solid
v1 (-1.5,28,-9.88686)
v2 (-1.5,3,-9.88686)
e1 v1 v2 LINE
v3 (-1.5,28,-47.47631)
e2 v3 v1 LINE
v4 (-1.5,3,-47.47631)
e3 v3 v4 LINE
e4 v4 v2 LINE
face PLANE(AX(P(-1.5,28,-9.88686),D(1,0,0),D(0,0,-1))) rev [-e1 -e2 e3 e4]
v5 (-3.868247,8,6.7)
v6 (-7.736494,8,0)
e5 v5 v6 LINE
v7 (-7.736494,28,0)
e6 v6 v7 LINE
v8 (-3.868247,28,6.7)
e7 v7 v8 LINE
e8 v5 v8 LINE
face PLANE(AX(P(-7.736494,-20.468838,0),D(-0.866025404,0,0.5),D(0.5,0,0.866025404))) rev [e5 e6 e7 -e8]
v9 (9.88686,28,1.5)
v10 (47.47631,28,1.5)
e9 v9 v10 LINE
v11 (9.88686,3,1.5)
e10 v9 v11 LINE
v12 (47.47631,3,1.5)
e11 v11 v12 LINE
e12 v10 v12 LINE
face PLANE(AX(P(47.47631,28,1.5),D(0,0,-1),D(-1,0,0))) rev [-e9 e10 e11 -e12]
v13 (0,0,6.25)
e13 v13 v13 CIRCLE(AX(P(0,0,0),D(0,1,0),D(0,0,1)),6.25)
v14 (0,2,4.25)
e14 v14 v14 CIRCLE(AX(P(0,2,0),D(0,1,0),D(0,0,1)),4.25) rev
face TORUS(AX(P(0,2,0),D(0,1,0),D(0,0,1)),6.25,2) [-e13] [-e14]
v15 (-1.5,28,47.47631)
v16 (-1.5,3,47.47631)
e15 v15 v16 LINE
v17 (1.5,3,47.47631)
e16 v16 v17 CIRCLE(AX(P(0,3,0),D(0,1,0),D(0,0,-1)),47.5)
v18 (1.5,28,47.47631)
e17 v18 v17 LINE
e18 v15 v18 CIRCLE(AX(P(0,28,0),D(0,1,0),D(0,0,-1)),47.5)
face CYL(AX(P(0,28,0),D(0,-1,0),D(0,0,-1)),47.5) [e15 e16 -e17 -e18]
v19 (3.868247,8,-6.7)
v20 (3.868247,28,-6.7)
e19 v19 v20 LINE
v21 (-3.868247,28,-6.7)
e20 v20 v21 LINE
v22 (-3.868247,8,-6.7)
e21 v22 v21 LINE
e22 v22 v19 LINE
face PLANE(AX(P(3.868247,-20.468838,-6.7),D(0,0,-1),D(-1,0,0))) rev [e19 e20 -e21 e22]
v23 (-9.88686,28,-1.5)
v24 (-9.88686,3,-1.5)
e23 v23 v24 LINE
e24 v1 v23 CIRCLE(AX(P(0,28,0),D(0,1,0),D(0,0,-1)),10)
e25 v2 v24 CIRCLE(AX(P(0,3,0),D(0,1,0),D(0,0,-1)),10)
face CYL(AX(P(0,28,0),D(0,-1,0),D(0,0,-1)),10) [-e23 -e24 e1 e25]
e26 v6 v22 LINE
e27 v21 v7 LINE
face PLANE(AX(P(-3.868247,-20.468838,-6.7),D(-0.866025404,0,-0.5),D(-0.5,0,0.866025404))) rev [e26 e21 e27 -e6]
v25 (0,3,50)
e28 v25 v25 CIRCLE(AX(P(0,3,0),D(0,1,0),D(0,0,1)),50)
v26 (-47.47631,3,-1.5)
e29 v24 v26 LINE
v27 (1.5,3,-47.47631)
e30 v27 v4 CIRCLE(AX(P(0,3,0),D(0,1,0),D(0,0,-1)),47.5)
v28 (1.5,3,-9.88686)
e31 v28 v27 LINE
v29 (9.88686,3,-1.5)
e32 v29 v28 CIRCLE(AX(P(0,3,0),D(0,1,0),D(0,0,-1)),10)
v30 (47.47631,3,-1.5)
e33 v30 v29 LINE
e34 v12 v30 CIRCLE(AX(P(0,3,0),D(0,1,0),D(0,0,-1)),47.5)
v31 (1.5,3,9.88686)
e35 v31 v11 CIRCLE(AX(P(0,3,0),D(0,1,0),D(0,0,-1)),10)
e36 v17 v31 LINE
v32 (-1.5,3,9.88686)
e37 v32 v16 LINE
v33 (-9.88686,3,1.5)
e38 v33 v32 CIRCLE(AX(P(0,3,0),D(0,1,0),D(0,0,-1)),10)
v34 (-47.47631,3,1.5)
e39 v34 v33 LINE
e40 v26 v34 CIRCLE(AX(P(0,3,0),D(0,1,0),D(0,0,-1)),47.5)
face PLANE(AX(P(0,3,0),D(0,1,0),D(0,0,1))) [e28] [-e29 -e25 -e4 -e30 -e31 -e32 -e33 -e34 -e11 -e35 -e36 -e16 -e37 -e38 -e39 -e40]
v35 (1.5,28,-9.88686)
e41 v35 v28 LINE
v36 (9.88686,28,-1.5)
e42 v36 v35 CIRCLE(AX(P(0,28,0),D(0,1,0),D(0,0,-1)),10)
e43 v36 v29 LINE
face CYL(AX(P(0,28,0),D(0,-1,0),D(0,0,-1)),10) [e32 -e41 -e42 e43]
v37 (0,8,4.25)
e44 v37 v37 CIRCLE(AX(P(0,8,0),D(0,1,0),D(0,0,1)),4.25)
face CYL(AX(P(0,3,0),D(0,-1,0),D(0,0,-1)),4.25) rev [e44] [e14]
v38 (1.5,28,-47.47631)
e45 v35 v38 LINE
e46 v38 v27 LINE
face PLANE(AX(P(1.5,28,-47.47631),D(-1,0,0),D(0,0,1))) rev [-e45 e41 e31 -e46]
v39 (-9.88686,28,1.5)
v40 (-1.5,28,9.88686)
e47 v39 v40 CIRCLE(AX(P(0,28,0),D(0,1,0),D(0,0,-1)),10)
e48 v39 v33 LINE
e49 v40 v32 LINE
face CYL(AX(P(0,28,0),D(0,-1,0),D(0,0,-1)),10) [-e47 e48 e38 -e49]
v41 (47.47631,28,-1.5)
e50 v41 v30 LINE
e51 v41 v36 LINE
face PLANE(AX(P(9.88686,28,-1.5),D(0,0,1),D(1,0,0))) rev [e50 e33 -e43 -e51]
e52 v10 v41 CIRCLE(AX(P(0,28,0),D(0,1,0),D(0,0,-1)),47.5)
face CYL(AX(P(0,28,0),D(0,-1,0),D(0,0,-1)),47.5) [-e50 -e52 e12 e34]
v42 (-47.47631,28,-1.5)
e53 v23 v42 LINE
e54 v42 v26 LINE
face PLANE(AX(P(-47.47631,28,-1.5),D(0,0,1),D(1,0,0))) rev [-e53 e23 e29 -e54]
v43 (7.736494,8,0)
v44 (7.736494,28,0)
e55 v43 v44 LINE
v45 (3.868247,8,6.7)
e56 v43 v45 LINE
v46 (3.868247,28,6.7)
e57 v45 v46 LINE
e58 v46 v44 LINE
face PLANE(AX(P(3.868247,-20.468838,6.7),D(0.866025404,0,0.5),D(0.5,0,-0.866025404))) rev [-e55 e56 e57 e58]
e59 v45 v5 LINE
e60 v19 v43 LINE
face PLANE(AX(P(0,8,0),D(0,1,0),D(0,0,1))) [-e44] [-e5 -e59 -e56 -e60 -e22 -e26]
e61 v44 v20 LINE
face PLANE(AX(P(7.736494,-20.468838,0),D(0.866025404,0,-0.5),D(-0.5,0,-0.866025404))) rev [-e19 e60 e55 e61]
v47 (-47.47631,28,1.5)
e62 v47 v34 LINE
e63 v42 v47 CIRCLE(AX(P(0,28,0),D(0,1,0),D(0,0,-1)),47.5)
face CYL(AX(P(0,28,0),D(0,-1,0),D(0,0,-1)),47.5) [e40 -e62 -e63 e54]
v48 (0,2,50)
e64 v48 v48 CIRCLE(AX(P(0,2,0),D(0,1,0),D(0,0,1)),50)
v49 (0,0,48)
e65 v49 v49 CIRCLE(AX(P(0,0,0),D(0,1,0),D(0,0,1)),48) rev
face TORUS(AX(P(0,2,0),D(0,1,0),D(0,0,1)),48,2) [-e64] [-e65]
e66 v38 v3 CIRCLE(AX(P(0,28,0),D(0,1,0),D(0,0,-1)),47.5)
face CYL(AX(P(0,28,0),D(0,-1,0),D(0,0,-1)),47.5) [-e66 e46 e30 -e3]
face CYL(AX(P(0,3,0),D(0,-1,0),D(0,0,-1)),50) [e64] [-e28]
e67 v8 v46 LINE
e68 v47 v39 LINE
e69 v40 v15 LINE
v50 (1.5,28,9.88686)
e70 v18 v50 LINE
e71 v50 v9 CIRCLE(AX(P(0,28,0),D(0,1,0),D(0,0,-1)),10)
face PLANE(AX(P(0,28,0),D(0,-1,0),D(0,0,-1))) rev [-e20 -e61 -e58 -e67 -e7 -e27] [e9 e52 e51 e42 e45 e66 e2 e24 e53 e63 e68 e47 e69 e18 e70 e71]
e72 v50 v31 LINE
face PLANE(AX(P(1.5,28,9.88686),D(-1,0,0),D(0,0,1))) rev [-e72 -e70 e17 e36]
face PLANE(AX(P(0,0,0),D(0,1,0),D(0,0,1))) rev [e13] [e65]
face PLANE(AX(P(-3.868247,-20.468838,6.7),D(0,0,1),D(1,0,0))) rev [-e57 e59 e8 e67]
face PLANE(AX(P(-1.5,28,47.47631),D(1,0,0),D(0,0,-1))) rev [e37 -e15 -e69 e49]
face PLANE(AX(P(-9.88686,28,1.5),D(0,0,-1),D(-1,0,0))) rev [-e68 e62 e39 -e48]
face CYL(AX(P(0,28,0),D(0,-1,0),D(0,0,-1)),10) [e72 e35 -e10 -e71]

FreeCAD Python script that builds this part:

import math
import FreeCAD as App
import Part
import Sketcher

V = App.Vector
Q = App.Units.Quantity


def edges_at(feature, points):
    """Names of the edges that pass closest to the given points."""
    edges = feature.Shape.Edges
    near = lambda p: min(range(len(edges)), key=lambda i: edges[i].distToShape(Part.Vertex(*p))[0])
    return sorted({f"Edge{near(p) + 1}" for p in points})

doc = App.newDocument("Part")
body = doc.addObject("PartDesign::Body", "Body")

sketch1 = doc.addObject("Sketcher::SketchObject", "Sketch")
body.addObject(sketch1)
sketch1.AttachmentSupport = (doc.XZ_Plane, [""])
sketch1.MapMode = "FlatFace"
sketch1.addGeometry(Part.Circle(V(0, 0, 0), V(0, 0, 1), 50), False)
sketch1.addGeometry(Part.Circle(V(0, 0, 0), V(0, 0, 1), 4.2), False)
sketch1.addConstraint(Sketcher.Constraint("Coincident", 0, 3, -1, 1))
sketch1.addConstraint(Sketcher.Constraint("Coincident", 1, 3, -1, 1))
sketch1.addConstraint(Sketcher.Constraint("Diameter", 0, Q("100 mm")))
sketch1.addConstraint(Sketcher.Constraint("Diameter", 1, Q("8.5 mm")))
pad1 = doc.addObject("PartDesign::Pad", "Pad")
body.addObject(pad1)
pad1.Profile = sketch1
pad1.Length = 3
pad1.Reversed = True

sketch2 = doc.addObject("Sketcher::SketchObject", "Sketch001")
body.addObject(sketch2)
sketch2.AttachmentSupport = (doc.XZ_Plane, [""])
sketch2.MapMode = "FlatFace"
sketch2.AttachmentOffset = App.Placement(V(0, 0, -3), App.Rotation())
sketch2.addGeometry(Part.LineSegment(V(47.5, -1.5, 0), V(9.9, -1.5, 0)), False)
sketch2.addGeometry(Part.ArcOfCircle(Part.Circle(V(0, 0, 0), V(0, 0, 1), 10), math.radians(-81), math.radians(-9)), False)
sketch2.addGeometry(Part.LineSegment(V(1.5, -9.9, 0), V(1.5, -47.5, 0)), False)
sketch2.addGeometry(Part.ArcOfCircle(Part.Circle(V(0, 0, 0), V(0, 0, 1), 47.5), math.radians(-91.81), math.radians(-88.19)), False)
sketch2.addGeometry(Part.LineSegment(V(-1.5, -47.5, 0), V(-1.5, -9.9, 0)), False)
sketch2.addGeometry(Part.ArcOfCircle(Part.Circle(V(0, 0, 0), V(0, 0, 1), 10), math.radians(-171), math.radians(-99)), False)
sketch2.addGeometry(Part.LineSegment(V(-9.9, -1.5, 0), V(-47.5, -1.5, 0)), False)
sketch2.addGeometry(Part.ArcOfCircle(Part.Circle(V(0, 0, 0), V(0, 0, 1), 47.5), math.radians(178.19), math.radians(181.81)), False)
sketch2.addGeometry(Part.LineSegment(V(-47.5, 1.5, 0), V(-9.9, 1.5, 0)), False)
sketch2.addGeometry(Part.ArcOfCircle(Part.Circle(V(0, 0, 0), V(0, 0, 1), 10), math.radians(99), math.radians(171)), False)
sketch2.addGeometry(Part.LineSegment(V(-1.5, 9.9, 0), V(-1.5, 47.5, 0)), False)
sketch2.addGeometry(Part.ArcOfCircle(Part.Circle(V(0, 0, 0), V(0, 0, 1), 47.5), math.radians(88.19), math.radians(91.81)), False)
sketch2.addGeometry(Part.LineSegment(V(1.5, 47.5, 0), V(1.5, 9.9, 0)), False)
sketch2.addGeometry(Part.ArcOfCircle(Part.Circle(V(0, 0, 0), V(0, 0, 1), 10), math.radians(9), math.radians(81)), False)
sketch2.addGeometry(Part.LineSegment(V(9.9, 1.5, 0), V(47.5, 1.5, 0)), False)
sketch2.addGeometry(Part.ArcOfCircle(Part.Circle(V(0, 0, 0), V(0, 0, 1), 47.5), math.radians(-1.81), math.radians(1.81)), False)
sketch2.addGeometry(Part.Circle(V(0, 0, 0), V(0, 0, 1), 4.2), False)
sketch2.addConstraint(Sketcher.Constraint("Coincident", 0, 2, 1, 2))
sketch2.addConstraint(Sketcher.Constraint("Coincident", 1, 1, 2, 1))
sketch2.addConstraint(Sketcher.Constraint("Coincident", 2, 2, 3, 2))
sketch2.addConstraint(Sketcher.Constraint("Coincident", 3, 1, 4, 1))
sketch2.addConstraint(Sketcher.Constraint("Coincident", 4, 2, 5, 2))
sketch2.addConstraint(Sketcher.Constraint("Coincident", 5, 1, 6, 1))
sketch2.addConstraint(Sketcher.Constraint("Coincident", 6, 2, 7, 2))
sketch2.addConstraint(Sketcher.Constraint("Coincident", 7, 1, 8, 1))
sketch2.addConstraint(Sketcher.Constraint("Coincident", 8, 2, 9, 2))
sketch2.addConstraint(Sketcher.Constraint("Coincident", 9, 1, 10, 1))
sketch2.addConstraint(Sketcher.Constraint("Coincident", 10, 2, 11, 2))
sketch2.addConstraint(Sketcher.Constraint("Coincident", 11, 1, 12, 1))
sketch2.addConstraint(Sketcher.Constraint("Coincident", 12, 2, 13, 2))
sketch2.addConstraint(Sketcher.Constraint("Coincident", 13, 1, 14, 1))
sketch2.addConstraint(Sketcher.Constraint("Coincident", 14, 2, 15, 2))
sketch2.addConstraint(Sketcher.Constraint("Coincident", 15, 1, 0, 1))
sketch2.addConstraint(Sketcher.Constraint("Horizontal", 0))
sketch2.addConstraint(Sketcher.Constraint("Vertical", 2))
sketch2.addConstraint(Sketcher.Constraint("Vertical", 4))
sketch2.addConstraint(Sketcher.Constraint("Horizontal", 6))
sketch2.addConstraint(Sketcher.Constraint("Horizontal", 8))
sketch2.addConstraint(Sketcher.Constraint("Vertical", 10))
sketch2.addConstraint(Sketcher.Constraint("Vertical", 12))
sketch2.addConstraint(Sketcher.Constraint("Horizontal", 14))
sketch2.addConstraint(Sketcher.Constraint("Coincident", 1, 3, -1, 1))
sketch2.addConstraint(Sketcher.Constraint("Coincident", 3, 3, -1, 1))
sketch2.addConstraint(Sketcher.Constraint("Coincident", 5, 3, -1, 1))
sketch2.addConstraint(Sketcher.Constraint("Coincident", 7, 3, -1, 1))
sketch2.addConstraint(Sketcher.Constraint("Coincident", 9, 3, -1, 1))
sketch2.addConstraint(Sketcher.Constraint("Coincident", 11, 3, -1, 1))
sketch2.addConstraint(Sketcher.Constraint("Coincident", 13, 3, -1, 1))
sketch2.addConstraint(Sketcher.Constraint("Coincident", 15, 3, -1, 1))
sketch2.addConstraint(Sketcher.Constraint("Coincident", 16, 3, -1, 1))
sketch2.addConstraint(Sketcher.Constraint("Equal", 1, 5))
sketch2.addConstraint(Sketcher.Constraint("Equal", 3, 7))
sketch2.addConstraint(Sketcher.Constraint("Equal", 5, 9))
sketch2.addConstraint(Sketcher.Constraint("Equal", 7, 11))
sketch2.addConstraint(Sketcher.Constraint("Equal", 9, 13))
sketch2.addConstraint(Sketcher.Constraint("Equal", 11, 15))
sketch2.addConstraint(Sketcher.Constraint("Horizontal", 2, 2, 3, 1))
sketch2.addConstraint(Sketcher.Constraint("Horizontal", 0, 2, 5, 1))
sketch2.addConstraint(Sketcher.Constraint("Horizontal", 10, 2, 11, 1))
sketch2.addConstraint(Sketcher.Constraint("Horizontal", 8, 2, 13, 1))
sketch2.addConstraint(Sketcher.Constraint("Vertical", 6, 2, 7, 1))
sketch2.addConstraint(Sketcher.Constraint("Vertical", 4, 2, 9, 1))
sketch2.addConstraint(Sketcher.Constraint("Equal", 14, 2))
sketch2.addConstraint(Sketcher.Constraint("Radius", 1, Q("10 mm")))
sketch2.addConstraint(Sketcher.Constraint("Diameter", 16, Q("8.5 mm")))
sketch2.addConstraint(Sketcher.Constraint("Radius", 3, Q("47.5 mm")))
sketch2.addConstraint(Sketcher.Constraint("DistanceX", 3, 1, 2, 2, Q("3 mm")))
pad2 = doc.addObject("PartDesign::Pad", "Pad001")
body.addObject(pad2)
pad2.Profile = sketch2
pad2.Length = 25
pad2.Reversed = True

sketch3 = doc.addObject("Sketcher::SketchObject", "Sketch002")
body.addObject(sketch3)
sketch3.AttachmentSupport = (doc.XZ_Plane, [""])
sketch3.MapMode = "FlatFace"
sketch3.AttachmentOffset = App.Placement(V(0, 0, -28), App.Rotation())
sketch3.addGeometry(Part.LineSegment(V(8, 0, 0), V(4, -7, 0)), False)
sketch3.addGeometry(Part.LineSegment(V(4, -7, 0), V(-4, -7, 0)), False)
sketch3.addGeometry(Part.LineSegment(V(-4, -7, 0), V(-8, 0, 0)), False)
sketch3.addGeometry(Part.LineSegment(V(-8, 0, 0), V(-4, 7, 0)), False)
sketch3.addGeometry(Part.LineSegment(V(-4, 7, 0), V(4, 7, 0)), False)
sketch3.addGeometry(Part.LineSegment(V(4, 7, 0), V(8, 0, 0)), False)
sketch3.addConstraint(Sketcher.Constraint("Coincident", 0, 2, 1, 1))
sketch3.addConstraint(Sketcher.Constraint("Coincident", 1, 2, 2, 1))
sketch3.addConstraint(Sketcher.Constraint("Coincident", 2, 2, 3, 1))
sketch3.addConstraint(Sketcher.Constraint("Coincident", 3, 2, 4, 1))
sketch3.addConstraint(Sketcher.Constraint("Coincident", 4, 2, 5, 1))
sketch3.addConstraint(Sketcher.Constraint("Coincident", 5, 2, 0, 1))
sketch3.addConstraint(Sketcher.Constraint("Horizontal", 1))
sketch3.addConstraint(Sketcher.Constraint("Horizontal", 4))
sketch3.addConstraint(Sketcher.Constraint("Symmetric", 0, 2, 3, 2, -1, 1))
sketch3.addConstraint(Sketcher.Constraint("Symmetric", 2, 2, 5, 2, -1, 1))
sketch3.addConstraint(Sketcher.Constraint("PointOnObject", 2, 2, -1))
sketch3.addConstraint(Sketcher.Constraint("Parallel", 2, 5))
sketch3.addConstraint(Sketcher.Constraint("Vertical", 1, 2, 3, 2))
sketch3.addConstraint(Sketcher.Constraint("Angle", 0, Q("-120 deg")))
sketch3.addConstraint(Sketcher.Constraint("DistanceY", 0, 2, -1, 1, Q("6.7 mm")))
sketch3.addConstraint(Sketcher.Constraint("DistanceX", 1, 2, 1, 1, Q("7.736494 mm")))
pocket1 = doc.addObject("PartDesign::Pocket", "Pocket")
body.addObject(pocket1)
pocket1.Profile = sketch3
pocket1.Length = 20
pocket1.Reversed = True
doc.recompute()

fillet = doc.addObject("PartDesign::Fillet", "Fillet")
body.addObject(fillet)
fillet.Base = (pocket1, edges_at(pocket1, [(0, 0, -50), (0, 0, -4.25)]))
fillet.Radius = 2

doc.recompute()
